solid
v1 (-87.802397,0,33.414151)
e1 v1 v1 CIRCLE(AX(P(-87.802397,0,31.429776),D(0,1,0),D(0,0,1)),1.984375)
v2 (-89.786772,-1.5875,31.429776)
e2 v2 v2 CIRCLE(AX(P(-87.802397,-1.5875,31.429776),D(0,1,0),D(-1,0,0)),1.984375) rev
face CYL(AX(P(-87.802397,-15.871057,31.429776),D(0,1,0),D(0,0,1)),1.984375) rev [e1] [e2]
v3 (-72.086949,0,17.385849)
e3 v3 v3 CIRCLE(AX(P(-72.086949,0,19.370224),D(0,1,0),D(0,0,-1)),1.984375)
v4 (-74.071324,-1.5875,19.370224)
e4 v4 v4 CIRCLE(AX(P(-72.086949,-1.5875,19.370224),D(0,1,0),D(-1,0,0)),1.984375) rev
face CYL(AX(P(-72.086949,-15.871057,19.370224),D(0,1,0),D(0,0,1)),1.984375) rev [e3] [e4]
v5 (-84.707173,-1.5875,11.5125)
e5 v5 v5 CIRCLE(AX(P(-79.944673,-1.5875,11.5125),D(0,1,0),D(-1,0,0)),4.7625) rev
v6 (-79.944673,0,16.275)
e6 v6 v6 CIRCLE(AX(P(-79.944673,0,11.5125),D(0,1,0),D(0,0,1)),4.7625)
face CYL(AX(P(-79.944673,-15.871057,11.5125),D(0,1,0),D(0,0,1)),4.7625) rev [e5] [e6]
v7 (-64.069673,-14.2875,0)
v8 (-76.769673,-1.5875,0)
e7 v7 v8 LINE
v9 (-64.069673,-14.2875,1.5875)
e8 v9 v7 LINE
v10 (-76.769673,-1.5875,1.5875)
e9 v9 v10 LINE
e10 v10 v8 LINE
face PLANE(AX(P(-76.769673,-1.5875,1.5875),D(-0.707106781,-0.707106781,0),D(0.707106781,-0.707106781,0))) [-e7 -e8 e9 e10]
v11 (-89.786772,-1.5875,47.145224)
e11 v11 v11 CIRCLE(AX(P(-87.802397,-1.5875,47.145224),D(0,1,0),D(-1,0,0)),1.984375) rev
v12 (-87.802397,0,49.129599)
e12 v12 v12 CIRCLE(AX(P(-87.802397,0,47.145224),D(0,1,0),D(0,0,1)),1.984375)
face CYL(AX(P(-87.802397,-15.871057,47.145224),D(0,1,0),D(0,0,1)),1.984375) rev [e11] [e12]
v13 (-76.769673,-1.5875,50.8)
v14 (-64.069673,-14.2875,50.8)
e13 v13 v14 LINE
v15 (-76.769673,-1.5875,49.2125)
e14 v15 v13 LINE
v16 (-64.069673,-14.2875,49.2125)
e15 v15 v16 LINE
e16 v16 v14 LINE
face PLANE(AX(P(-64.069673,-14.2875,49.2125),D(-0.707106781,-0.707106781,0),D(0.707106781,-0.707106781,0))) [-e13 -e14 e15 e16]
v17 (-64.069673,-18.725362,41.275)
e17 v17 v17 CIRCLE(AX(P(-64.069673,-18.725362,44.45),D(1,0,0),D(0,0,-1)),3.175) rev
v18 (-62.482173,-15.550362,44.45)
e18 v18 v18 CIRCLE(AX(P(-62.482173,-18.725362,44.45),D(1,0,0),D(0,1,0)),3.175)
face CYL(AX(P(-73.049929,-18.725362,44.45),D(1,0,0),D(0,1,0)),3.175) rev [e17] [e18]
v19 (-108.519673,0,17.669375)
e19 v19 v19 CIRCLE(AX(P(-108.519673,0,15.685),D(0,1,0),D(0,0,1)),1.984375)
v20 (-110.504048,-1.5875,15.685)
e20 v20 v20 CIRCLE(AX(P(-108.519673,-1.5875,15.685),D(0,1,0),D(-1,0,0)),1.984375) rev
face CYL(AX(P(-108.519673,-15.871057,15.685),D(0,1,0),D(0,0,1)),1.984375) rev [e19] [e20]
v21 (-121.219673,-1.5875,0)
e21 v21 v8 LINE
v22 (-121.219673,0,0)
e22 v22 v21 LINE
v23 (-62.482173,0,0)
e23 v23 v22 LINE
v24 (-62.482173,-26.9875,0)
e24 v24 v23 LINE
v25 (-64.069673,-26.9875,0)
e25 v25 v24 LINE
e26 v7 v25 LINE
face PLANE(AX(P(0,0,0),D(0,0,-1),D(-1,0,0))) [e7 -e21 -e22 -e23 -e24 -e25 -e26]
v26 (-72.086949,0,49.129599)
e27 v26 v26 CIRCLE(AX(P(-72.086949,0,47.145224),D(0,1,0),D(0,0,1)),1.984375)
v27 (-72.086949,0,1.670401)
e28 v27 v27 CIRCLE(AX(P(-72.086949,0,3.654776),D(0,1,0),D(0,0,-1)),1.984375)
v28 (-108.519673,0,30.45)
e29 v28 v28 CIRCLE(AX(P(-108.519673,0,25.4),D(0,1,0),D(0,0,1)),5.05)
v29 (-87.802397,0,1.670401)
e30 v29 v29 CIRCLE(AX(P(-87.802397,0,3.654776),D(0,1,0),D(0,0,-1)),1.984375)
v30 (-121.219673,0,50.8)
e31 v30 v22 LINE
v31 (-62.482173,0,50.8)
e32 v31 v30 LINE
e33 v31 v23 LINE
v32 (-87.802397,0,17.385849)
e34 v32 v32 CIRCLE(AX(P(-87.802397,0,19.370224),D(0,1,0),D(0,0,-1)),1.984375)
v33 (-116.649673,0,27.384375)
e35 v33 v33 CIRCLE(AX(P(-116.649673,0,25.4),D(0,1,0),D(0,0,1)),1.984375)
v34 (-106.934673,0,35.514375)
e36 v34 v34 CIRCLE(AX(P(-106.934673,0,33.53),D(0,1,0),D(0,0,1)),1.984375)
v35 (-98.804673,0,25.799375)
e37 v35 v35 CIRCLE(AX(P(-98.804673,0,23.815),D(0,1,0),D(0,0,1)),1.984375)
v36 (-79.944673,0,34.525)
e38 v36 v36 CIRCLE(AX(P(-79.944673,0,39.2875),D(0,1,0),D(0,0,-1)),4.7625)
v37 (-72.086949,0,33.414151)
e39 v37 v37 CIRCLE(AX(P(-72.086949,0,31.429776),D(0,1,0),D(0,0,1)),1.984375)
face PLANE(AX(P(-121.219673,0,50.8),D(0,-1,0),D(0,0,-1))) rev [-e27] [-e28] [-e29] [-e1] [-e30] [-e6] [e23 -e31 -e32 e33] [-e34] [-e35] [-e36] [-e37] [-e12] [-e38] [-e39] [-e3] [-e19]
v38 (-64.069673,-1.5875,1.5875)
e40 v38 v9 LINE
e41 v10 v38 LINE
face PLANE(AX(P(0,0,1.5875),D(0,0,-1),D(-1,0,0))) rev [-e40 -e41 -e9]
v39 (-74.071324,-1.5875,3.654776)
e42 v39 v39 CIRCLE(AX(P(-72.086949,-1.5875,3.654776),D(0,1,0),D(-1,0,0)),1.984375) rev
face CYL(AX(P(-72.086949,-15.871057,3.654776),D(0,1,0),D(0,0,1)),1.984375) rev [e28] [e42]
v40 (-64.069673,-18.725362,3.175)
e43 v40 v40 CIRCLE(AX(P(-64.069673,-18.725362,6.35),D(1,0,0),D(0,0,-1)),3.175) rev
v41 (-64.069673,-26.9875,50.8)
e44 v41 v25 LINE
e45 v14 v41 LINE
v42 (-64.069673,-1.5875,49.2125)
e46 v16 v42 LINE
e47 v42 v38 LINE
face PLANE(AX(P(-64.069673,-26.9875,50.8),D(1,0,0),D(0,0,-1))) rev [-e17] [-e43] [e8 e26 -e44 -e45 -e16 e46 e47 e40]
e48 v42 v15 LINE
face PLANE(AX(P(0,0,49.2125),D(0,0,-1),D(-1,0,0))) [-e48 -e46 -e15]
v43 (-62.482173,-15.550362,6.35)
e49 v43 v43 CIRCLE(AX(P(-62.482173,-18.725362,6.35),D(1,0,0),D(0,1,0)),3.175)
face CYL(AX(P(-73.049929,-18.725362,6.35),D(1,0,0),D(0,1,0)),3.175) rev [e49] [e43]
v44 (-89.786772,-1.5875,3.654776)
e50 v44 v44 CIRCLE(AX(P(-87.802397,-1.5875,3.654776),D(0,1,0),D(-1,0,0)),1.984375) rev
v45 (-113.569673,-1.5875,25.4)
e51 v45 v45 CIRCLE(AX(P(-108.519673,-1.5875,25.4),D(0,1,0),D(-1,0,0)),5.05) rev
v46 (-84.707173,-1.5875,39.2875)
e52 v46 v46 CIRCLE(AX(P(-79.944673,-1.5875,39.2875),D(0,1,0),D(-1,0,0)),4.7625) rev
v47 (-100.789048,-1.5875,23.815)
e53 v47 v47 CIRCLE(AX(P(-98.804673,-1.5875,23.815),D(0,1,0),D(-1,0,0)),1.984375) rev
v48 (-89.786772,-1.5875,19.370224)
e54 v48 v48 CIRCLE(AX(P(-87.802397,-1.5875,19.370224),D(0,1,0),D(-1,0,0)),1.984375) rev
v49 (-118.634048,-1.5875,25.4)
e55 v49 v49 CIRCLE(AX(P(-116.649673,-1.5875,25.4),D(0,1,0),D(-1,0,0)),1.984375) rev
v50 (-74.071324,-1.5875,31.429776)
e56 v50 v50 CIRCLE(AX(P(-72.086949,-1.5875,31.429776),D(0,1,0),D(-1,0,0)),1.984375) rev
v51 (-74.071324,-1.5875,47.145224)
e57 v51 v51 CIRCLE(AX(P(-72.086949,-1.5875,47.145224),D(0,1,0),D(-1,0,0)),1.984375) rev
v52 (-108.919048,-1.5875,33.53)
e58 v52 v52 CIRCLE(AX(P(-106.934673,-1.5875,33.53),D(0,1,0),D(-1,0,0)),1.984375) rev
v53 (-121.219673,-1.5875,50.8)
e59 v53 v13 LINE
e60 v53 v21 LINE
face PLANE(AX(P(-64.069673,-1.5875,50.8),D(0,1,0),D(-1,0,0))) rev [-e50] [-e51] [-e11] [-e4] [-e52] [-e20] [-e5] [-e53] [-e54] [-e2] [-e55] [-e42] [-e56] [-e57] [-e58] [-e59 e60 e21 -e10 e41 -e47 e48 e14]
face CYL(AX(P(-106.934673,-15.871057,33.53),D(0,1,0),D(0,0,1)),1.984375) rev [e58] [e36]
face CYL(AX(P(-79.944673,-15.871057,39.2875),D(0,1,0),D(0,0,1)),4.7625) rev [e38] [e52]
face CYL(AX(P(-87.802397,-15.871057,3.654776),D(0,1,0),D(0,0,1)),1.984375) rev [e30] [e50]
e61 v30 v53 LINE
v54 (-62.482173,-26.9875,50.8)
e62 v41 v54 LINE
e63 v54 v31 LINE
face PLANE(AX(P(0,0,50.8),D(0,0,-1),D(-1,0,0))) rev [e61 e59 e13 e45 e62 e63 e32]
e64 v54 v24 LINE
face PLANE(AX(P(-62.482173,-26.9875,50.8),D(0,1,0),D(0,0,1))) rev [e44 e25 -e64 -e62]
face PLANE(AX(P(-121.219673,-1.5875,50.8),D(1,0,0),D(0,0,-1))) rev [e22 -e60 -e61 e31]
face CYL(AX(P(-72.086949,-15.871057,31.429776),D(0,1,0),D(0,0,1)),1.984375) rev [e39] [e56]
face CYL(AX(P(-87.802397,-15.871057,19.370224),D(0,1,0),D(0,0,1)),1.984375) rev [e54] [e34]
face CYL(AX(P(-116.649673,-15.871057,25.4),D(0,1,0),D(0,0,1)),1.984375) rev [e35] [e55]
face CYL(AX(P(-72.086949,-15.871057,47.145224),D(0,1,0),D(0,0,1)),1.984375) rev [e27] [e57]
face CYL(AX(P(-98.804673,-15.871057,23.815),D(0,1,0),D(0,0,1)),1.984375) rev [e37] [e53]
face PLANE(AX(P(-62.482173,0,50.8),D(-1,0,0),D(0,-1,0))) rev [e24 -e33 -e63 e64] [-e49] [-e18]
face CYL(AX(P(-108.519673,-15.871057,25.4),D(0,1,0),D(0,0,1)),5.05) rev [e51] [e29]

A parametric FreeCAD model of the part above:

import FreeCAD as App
import Part
import Sketcher

V = App.Vector
Q = App.Units.Quantity

doc = App.newDocument("Part")
params = doc.addObject("Spreadsheet::Sheet", "Params")
for row, (alias, value) in enumerate([
    ("sketch1_height", "1 in"),
    ("sketch1_width", "2.25 in"),
    ("sketch1_width2", "2.3125 in"),
    ("pad1_length", "2 in"),
    ("sketch2_diameter", "0.375 in"),
    ("sketch2_diameter2", "0.15625 in"),
    ("pocket1_length", "0.0625 in"),
    ("sketch3_width", "0.5 in"),
    ("pad2_length", "0.0625 in"),
    ("sketch4_width", "0.5 in"),
    ("pad3_length", "0.0625 in"),
    ("sketch5_diameter", "0.25 in"),
    ("pocket2_length", "0.0625 in"),
], start=1):
    params.set(f"A{row}", alias)
    params.set(f"B{row}", "=" + value)
    params.setAlias(f"B{row}", alias)

body = doc.addObject("PartDesign::Body", "Body")

# Sketch on XY plane
sketch1 = body.newObject("Sketcher::SketchObject", "Sketch")
sketch1.AttachmentSupport = (doc.getObject("XY_Plane"), [""])
sketch1.MapMode = "FlatFace"
sketch1.addGeometry([
    Part.LineSegment(V(-62.482173, 0, 0), V(-121.219673, 0, 0)),  # 0
    Part.LineSegment(V(-121.219673, 0, 0), V(-121.219673, -1.5875, 0)),  # 1
    Part.LineSegment(V(-121.219673, -1.5875, 0), V(-64.069673, -1.5875, 0)),  # 2
    Part.LineSegment(V(-64.069673, -1.5875, 0), V(-64.069673, -26.9875, 0)),  # 3
    Part.LineSegment(V(-64.069673, -26.9875, 0), V(-62.482173, -26.9875, 0)),  # 4
    Part.LineSegment(V(-62.482173, -26.9875, 0), V(-62.482173, 0, 0)),  # 5
], False)
sketch1.addConstraint([
    Sketcher.Constraint("Coincident", 0, 2, 1, 1),
    Sketcher.Constraint("Coincident", 1, 2, 2, 1),
    Sketcher.Constraint("Coincident", 2, 2, 3, 1),
    Sketcher.Constraint("Coincident", 3, 2, 4, 1),
    Sketcher.Constraint("Coincident", 4, 2, 5, 1),
    Sketcher.Constraint("Coincident", 5, 2, 0, 1),
    Sketcher.Constraint("Horizontal", 0),
    Sketcher.Constraint("Vertical", 1),
    Sketcher.Constraint("Horizontal", 2),
    Sketcher.Constraint("Vertical", 3),
    Sketcher.Constraint("Horizontal", 4),
    Sketcher.Constraint("Vertical", 5),
    Sketcher.Constraint("PointOnObject", 0, 2, -1),
    Sketcher.Constraint("Equal", 4, 1),
    Sketcher.Constraint("DistanceY", 3, 2, 3, 1, Q("1 in")),
    Sketcher.Constraint("DistanceX", 2, 1, 2, 2, Q("2.25 in")),
    Sketcher.Constraint("DistanceX", 0, 2, 0, 1, Q("2.3125 in")),
    Sketcher.Constraint("DistanceX", 0, 2, -1, 1, Q("121.219673 mm")),
])
sketch1.setExpression("Constraints[14]", "Params.sketch1_height")
sketch1.setExpression("Constraints[15]", "Params.sketch1_width")
sketch1.setExpression("Constraints[16]", "Params.sketch1_width2")
pad1 = body.newObject("PartDesign::Pad", "Pad")
pad1.Profile = sketch1
pad1.setExpression("Length", "Params.pad1_length")

# Sketch on XZ plane
sketch2 = body.newObject("Sketcher::SketchObject", "Sketch001")
sketch2.AttachmentSupport = (doc.getObject("XZ_Plane"), [""])
sketch2.MapMode = "FlatFace"
sketch2.addGeometry([
    Part.Circle(V(-108.519673, 25.4, 0), V(0, 0, 1), 5.05),  # 0
    Part.Circle(V(-79.944673, 39.2875, 0), V(0, 0, 1), 4.7625),  # 1
    Part.Circle(V(-108.519673, 15.685, 0), V(0, 0, 1), 1.984375),  # 2
    Part.Circle(V(-87.802397, 31.429776, 0), V(0, 0, 1), 1.984375),  # 3
    Part.Circle(V(-72.086949, 31.429776, 0), V(0, 0, 1), 1.984375),  # 4
    Part.Circle(V(-72.086949, 47.145224, 0), V(0, 0, 1), 1.984375),  # 5
    Part.Circle(V(-87.802397, 47.145224, 0), V(0, 0, 1), 1.984375),  # 6
    Part.Circle(V(-116.649673, 25.4, 0), V(0, 0, 1), 1.984375),  # 7
    Part.Circle(V(-98.804673, 23.815, 0), V(0, 0, 1), 1.984375),  # 8
    Part.Circle(V(-106.934673, 33.53, 0), V(0, 0, 1), 1.984375),  # 9
    Part.Circle(V(-87.802397, 3.654776, 0), V(0, 0, 1), 1.984375),  # 10
    Part.Circle(V(-72.086949, 3.654776, 0), V(0, 0, 1), 1.984375),  # 11
    Part.Circle(V(-72.086949, 19.370224, 0), V(0, 0, 1), 1.984375),  # 12
    Part.Circle(V(-87.802397, 19.370224, 0), V(0, 0, 1), 1.984375),  # 13
    Part.Circle(V(-79.944673, 11.5125, 0), V(0, 0, 1), 4.7625),  # 14
], False)
sketch2.addConstraint([
    Sketcher.Constraint("Equal", 2, 3),
    Sketcher.Constraint("Equal", 3, 4),
    Sketcher.Constraint("Equal", 4, 5),
    Sketcher.Constraint("Equal", 5, 6),
    Sketcher.Constraint("Equal", 6, 7),
    Sketcher.Constraint("Equal", 7, 8),
    Sketcher.Constraint("Equal", 8, 9),
    Sketcher.Constraint("Equal", 9, 10),
    Sketcher.Constraint("Equal", 10, 11),
    Sketcher.Constraint("Equal", 11, 12),
    Sketcher.Constraint("Equal", 12, 13),
    Sketcher.Constraint("Equal", 1, 14),
    Sketcher.Constraint("Horizontal", 3, 3, 4, 3),
    Sketcher.Constraint("Horizontal", 5, 3, 6, 3),
    Sketcher.Constraint("Horizontal", 0, 3, 7, 3),
    Sketcher.Constraint("Horizontal", 10, 3, 11, 3),
    Sketcher.Constraint("Horizontal", 12, 3, 13, 3),
    Sketcher.Constraint("Vertical", 0, 3, 2, 3),
    Sketcher.Constraint("Vertical", 4, 3, 5, 3),
    Sketcher.Constraint("Vertical", 3, 3, 6, 3),
    Sketcher.Constraint("Vertical", 6, 3, 10, 3),
    Sketcher.Constraint("Vertical", 5, 3, 11, 3),
    Sketcher.Constraint("Vertical", 11, 3, 12, 3),
    Sketcher.Constraint("Vertical", 10, 3, 13, 3),
    Sketcher.Constraint("Vertical", 1, 3, 14, 3),
    Sketcher.Constraint("Diameter", 1, Q("0.375 in")),
    Sketcher.Constraint("Diameter", 2, Q("0.15625 in")),
    Sketcher.Constraint("DistanceY", -1, 1, 0, 3, Q("1 in")),
    Sketcher.Constraint("Diameter", 0, Q("10.1 mm")),
    Sketcher.Constraint("DistanceX", 0, 3, 1, 3, Q("1.125 in")),
    Sketcher.Constraint("DistanceY", -1, 1, 1, 3, Q("39.2875 mm")),
    Sketcher.Constraint("DistanceY", -1, 1, 2, 3, Q("15.685 mm")),
    Sketcher.Constraint("DistanceY", -1, 1, 8, 3, Q("23.815 mm")),
    Sketcher.Constraint("DistanceY", -1, 1, 9, 3, Q("33.53 mm")),
    Sketcher.Constraint("DistanceY", -1, 1, 14, 3, Q("11.5125 mm")),
    Sketcher.Constraint("DistanceX", 7, 3, 0, 3, Q("8.13 mm")),
    Sketcher.Constraint("DistanceX", 0, 3, 8, 3, Q("9.715 mm")),
    Sketcher.Constraint("DistanceX", 0, 3, 9, 3, Q("1.585 mm")),
    Sketcher.Constraint("DistanceY", 10, 3, 3, 3, Q("27.775 mm")),
    Sketcher.Constraint("DistanceX", 4, 3, -1, 1, Q("72.086949 mm")),
    Sketcher.Constraint("DistanceX", 3, 3, 4, 3, Q("15.715448 mm")),
    Sketcher.Constraint("DistanceY", 4, 3, 5, 3, Q("15.715448 mm")),
    Sketcher.Constraint("DistanceY", 12, 3, 4, 3, Q("12.059552 mm")),
    Sketcher.Constraint("DistanceX", 0, 3, -1, 1, Q("108.519673 mm")),
    Sketcher.Constraint("DistanceY", -1, 1, 3, 3, Q("31.429776 mm")),
])
sketch2.setExpression("Constraints[25]", "Params.sketch2_diameter")
sketch2.setExpression("Constraints[26]", "Params.sketch2_diameter2")
pocket1 = body.newObject("PartDesign::Pocket", "Pocket")
pocket1.Profile = sketch2
pocket1.setExpression("Length", "Params.pocket1_length")
pocket1.Reversed = True

# Sketch on XY plane
sketch3 = body.newObject("Sketcher::SketchObject", "Sketch002")
sketch3.AttachmentSupport = (doc.getObject("XY_Plane"), [""])
sketch3.MapMode = "FlatFace"
sketch3.addGeometry([
    Part.LineSegment(V(-64.069673, -14.2875, 0), V(-76.769673, -1.5875, 0)),
    Part.LineSegment(V(-76.769673, -1.5875, 0), V(-64.069673, -1.5875, 0)),
    Part.LineSegment(V(-64.069673, -1.5875, 0), V(-64.069673, -14.2875, 0)),
], False)
sketch3.addConstraint([
    Sketcher.Constraint("Coincident", 0, 2, 1, 1),
    Sketcher.Constraint("Coincident", 1, 2, 2, 1),
    Sketcher.Constraint("Coincident", 2, 2, 0, 1),
    Sketcher.Constraint("Horizontal", 1),
    Sketcher.Constraint("Vertical", 2),
    Sketcher.Constraint("Equal", 1, 2),
    Sketcher.Constraint("DistanceX", 1, 1, 1, 2, Q("0.5 in")),
    Sketcher.Constraint("DistanceY", 0, 2, -1, 1, Q("0.0625 in")),
    Sketcher.Constraint("DistanceX", 0, 2, -1, 1, Q("76.769673 mm")),
])
sketch3.setExpression("Constraints[6]", "Params.sketch3_width")
pad2 = body.newObject("PartDesign::Pad", "Pad001")
pad2.Profile = sketch3
pad2.setExpression("Length", "Params.pad2_length")

# Sketch on XY plane
sketch4 = body.newObject("Sketcher::SketchObject", "Sketch003")
sketch4.AttachmentSupport = (doc.getObject("XY_Plane"), [""])
sketch4.MapMode = "FlatFace"
sketch4.AttachmentOffset = App.Placement(V(0, 0, 2 * 25.4), App.Rotation())
sketch4.addGeometry([
    Part.LineSegment(V(-64.069673, -14.2875, 0), V(-64.069673, -1.5875, 0)),
    Part.LineSegment(V(-64.069673, -1.5875, 0), V(-76.769673, -1.5875, 0)),
    Part.LineSegment(V(-76.769673, -1.5875, 0), V(-64.069673, -14.2875, 0)),
], False)
sketch4.addConstraint([
    Sketcher.Constraint("Coincident", 0, 2, 1, 1),
    Sketcher.Constraint("Coincident", 1, 2, 2, 1),
    Sketcher.Constraint("Coincident", 2, 2, 0, 1),
    Sketcher.Constraint("Vertical", 0),
    Sketcher.Constraint("Horizontal", 1),
    Sketcher.Constraint("Equal", 1, 0),
    Sketcher.Constraint("DistanceX", 1, 2, 1, 1, Q("0.5 in")),
    Sketcher.Constraint("DistanceY", 0, 2, -1, 1, Q("0.0625 in")),
    Sketcher.Constraint("DistanceX", 0, 2, -1, 1, Q("64.069673 mm")),
])
sketch4.setExpression("Constraints[6]", "Params.sketch4_width")
pad3 = body.newObject("PartDesign::Pad", "Pad002")
pad3.Profile = sketch4
pad3.setExpression("Length", "Params.pad3_length")
pad3.Reversed = True

# Sketch on YZ plane
sketch5 = body.newObject("Sketcher::SketchObject", "Sketch004")
sketch5.AttachmentSupport = (doc.getObject("YZ_Plane"), [""])
sketch5.MapMode = "FlatFace"
sketch5.AttachmentOffset = App.Placement(V(0, 0, -62.482173), App.Rotation())
sketch5.addGeometry([
    Part.Circle(V(-18.725362, 44.45, 0), V(0, 0, 1), 3.175),
    Part.Circle(V(-18.725362, 6.35, 0), V(0, 0, 1), 3.175),
], False)
sketch5.addConstraint([
    Sketcher.Constraint("Equal", 0, 1),
    Sketcher.Constraint("Vertical", 0, 3, 1, 3),
    Sketcher.Constraint("Diameter", 0, Q("0.25 in")),
    Sketcher.Constraint("DistanceY", 1, 3, 0, 3, Q("1.5 in")),
    Sketcher.Constraint("DistanceY", -1, 1, 0, 3, Q("1.75 in")),
    Sketcher.Constraint("DistanceX", 0, 3, -1, 1, Q("18.725362 mm")),
])
sketch5.setExpression("Constraints[2]", "Params.sketch5_diameter")
pocket2 = body.newObject("PartDesign::Pocket", "Pocket001")
pocket2.Profile = sketch5
pocket2.setExpression("Length", "Params.pocket2_length")

doc.recompute()
